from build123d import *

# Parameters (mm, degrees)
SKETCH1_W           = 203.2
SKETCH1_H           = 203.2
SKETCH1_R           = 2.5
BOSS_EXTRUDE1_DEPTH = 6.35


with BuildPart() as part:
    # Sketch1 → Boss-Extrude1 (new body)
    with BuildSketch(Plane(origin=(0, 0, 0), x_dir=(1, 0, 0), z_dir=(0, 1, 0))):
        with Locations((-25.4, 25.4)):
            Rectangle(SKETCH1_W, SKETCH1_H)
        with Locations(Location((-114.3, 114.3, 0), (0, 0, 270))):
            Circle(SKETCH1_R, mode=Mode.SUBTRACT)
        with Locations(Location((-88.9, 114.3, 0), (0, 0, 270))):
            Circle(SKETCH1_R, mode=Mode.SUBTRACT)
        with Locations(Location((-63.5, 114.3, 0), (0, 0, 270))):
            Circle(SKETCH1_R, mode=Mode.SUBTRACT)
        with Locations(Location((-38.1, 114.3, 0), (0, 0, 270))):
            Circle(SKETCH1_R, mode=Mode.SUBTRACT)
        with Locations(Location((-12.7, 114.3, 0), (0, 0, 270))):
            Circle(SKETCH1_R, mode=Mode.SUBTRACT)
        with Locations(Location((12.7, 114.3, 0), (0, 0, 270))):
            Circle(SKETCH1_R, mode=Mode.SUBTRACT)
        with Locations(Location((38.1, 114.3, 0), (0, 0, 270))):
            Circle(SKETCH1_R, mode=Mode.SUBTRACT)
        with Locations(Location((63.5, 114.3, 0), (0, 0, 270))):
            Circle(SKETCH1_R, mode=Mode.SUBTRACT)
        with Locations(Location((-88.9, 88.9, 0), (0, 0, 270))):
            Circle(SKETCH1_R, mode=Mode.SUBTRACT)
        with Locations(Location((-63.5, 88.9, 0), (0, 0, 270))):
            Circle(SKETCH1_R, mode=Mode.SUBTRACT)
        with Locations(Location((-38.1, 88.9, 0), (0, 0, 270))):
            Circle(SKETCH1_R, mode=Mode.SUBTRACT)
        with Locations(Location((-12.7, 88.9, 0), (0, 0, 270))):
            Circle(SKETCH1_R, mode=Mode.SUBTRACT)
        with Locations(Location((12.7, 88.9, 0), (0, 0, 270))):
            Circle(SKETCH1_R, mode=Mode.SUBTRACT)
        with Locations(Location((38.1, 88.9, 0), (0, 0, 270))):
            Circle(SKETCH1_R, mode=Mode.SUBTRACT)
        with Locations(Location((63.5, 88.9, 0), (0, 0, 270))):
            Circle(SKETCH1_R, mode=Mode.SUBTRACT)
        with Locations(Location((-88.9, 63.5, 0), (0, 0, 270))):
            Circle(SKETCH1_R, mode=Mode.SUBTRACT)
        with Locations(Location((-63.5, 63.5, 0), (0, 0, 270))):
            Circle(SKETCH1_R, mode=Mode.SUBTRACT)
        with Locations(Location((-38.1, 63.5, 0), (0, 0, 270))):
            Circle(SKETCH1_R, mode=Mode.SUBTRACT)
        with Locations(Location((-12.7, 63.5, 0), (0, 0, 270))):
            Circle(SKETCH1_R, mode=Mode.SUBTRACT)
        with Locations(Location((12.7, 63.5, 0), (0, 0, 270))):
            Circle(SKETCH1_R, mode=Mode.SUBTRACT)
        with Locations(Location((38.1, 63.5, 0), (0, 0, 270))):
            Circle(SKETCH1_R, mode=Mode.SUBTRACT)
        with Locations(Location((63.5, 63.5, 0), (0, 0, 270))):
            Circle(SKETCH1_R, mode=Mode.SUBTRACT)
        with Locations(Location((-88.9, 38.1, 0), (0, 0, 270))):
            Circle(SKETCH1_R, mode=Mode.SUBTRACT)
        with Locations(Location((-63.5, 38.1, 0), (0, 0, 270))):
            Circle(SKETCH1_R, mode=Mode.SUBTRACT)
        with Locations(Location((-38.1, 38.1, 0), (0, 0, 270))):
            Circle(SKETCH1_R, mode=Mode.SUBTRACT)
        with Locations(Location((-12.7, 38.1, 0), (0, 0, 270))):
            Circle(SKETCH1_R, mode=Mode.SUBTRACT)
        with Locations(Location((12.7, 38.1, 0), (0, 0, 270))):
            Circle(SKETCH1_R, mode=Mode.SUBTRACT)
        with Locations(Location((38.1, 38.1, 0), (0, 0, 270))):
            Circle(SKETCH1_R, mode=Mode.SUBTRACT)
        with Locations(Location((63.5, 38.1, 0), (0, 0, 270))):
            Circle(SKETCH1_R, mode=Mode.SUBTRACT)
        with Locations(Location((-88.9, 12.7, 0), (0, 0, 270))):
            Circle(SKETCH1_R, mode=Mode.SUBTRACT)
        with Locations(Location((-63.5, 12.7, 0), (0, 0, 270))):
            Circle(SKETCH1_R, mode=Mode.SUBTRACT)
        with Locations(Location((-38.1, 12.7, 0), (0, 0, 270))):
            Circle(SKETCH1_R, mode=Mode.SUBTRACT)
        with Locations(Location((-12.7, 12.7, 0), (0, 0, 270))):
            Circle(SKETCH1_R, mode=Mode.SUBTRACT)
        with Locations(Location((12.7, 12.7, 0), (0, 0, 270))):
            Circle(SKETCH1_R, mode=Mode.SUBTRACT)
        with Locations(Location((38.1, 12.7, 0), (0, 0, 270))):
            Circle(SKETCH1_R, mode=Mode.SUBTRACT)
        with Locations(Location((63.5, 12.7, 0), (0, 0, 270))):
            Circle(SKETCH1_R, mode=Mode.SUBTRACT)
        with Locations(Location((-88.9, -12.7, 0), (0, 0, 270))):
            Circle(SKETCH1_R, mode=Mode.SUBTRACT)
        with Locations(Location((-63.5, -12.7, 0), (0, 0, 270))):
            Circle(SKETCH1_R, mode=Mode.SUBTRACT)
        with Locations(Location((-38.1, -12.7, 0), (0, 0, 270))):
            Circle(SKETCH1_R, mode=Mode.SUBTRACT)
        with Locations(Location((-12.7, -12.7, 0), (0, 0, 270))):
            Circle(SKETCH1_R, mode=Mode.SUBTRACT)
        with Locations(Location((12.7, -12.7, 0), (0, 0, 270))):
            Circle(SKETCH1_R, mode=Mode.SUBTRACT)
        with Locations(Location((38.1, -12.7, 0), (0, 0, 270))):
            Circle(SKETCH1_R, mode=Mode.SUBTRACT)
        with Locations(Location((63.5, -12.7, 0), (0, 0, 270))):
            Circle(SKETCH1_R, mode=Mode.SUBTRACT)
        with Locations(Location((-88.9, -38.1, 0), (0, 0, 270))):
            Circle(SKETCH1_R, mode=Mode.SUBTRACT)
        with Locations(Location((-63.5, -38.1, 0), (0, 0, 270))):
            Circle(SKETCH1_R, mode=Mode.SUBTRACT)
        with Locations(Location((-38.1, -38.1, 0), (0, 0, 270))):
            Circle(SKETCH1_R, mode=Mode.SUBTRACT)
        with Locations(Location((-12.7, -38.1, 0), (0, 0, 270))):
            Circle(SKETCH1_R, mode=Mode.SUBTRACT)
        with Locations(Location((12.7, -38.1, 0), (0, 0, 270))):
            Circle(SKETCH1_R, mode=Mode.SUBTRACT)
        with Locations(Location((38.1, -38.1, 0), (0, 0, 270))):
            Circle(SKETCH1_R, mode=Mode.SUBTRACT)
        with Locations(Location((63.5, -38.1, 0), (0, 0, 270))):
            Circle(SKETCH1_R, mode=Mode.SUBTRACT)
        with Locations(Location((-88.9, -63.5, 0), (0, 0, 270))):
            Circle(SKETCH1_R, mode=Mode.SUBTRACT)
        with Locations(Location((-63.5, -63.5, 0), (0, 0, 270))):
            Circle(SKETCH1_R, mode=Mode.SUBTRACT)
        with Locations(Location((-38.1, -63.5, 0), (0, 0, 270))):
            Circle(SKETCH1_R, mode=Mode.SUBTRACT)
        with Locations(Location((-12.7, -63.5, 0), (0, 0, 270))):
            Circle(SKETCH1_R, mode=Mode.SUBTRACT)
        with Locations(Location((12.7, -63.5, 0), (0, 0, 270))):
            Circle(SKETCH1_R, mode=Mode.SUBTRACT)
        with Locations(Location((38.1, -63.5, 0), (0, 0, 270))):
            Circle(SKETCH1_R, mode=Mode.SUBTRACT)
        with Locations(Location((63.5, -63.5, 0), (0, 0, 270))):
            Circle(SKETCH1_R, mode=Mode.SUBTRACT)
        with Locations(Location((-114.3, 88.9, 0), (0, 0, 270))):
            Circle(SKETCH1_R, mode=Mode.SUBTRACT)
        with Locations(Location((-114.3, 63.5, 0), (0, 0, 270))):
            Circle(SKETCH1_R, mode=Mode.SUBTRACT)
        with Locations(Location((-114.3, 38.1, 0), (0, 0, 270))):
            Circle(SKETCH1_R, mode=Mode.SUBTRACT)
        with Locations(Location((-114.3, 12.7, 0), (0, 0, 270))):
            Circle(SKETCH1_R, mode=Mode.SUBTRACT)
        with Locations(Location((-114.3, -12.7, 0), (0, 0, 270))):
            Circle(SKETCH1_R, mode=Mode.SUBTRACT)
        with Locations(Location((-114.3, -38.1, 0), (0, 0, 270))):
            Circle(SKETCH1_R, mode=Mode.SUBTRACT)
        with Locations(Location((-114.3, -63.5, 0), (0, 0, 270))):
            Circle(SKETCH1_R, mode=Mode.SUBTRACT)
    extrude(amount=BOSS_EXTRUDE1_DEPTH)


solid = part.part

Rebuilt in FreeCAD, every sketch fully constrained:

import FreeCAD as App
import Part
import Sketcher
Q = App.Units.Quantity


def add_polygon(sketch, points):
    """Adds a closed chain of lines whose ends are joined by coincident constraints."""
    first, n = sketch.GeometryCount, len(points)
    for a, b in zip(points, points[1:] + points[:1]):
        sketch.addGeometry(Part.LineSegment(App.Vector(*a, 0), App.Vector(*b, 0)), False)
    for i in range(n):
        sketch.addConstraint(Sketcher.Constraint("Coincident", first + i, 2, first + (i + 1) % n, 1))

doc = App.newDocument("Part")
body = doc.addObject("PartDesign::Body", "Body")

sketch1 = body.newObject("Sketcher::SketchObject", "Sketch")
sketch1.AttachmentSupport = (doc.getObject("XZ_Plane"), [""])
sketch1.MapMode = "FlatFace"
add_polygon(sketch1, [(-127, -127), (-127, 76.2), (76.2, 76.2), (76.2, -127)])
sketch1.addGeometry(Part.Circle(App.Vector(-114.3, 63.5, 0), App.Vector(0, 0, 1), 2.5), False)
sketch1.addGeometry(Part.Circle(App.Vector(-88.9, 63.5, 0), App.Vector(0, 0, 1), 2.5), False)
sketch1.addGeometry(Part.Circle(App.Vector(-114.3, 38.1, 0), App.Vector(0, 0, 1), 2.5), False)
sketch1.addGeometry(Part.Circle(App.Vector(-88.9, 38.1, 0), App.Vector(0, 0, 1), 2.5), False)
sketch1.addGeometry(Part.Circle(App.Vector(-63.5, 63.5, 0), App.Vector(0, 0, 1), 2.5), False)
sketch1.addGeometry(Part.Circle(App.Vector(-38.1, 63.5, 0), App.Vector(0, 0, 1), 2.5), False)
sketch1.addGeometry(Part.Circle(App.Vector(-63.5, 38.1, 0), App.Vector(0, 0, 1), 2.5), False)
sketch1.addGeometry(Part.Circle(App.Vector(-38.1, 38.1, 0), App.Vector(0, 0, 1), 2.5), False)
sketch1.addGeometry(Part.Circle(App.Vector(-114.3, 12.7, 0), App.Vector(0, 0, 1), 2.5), False)
sketch1.addGeometry(Part.Circle(App.Vector(-88.9, 12.7, 0), App.Vector(0, 0, 1), 2.5), False)
sketch1.addGeometry(Part.Circle(App.Vector(-114.3, -12.7, 0), App.Vector(0, 0, 1), 2.5), False)
sketch1.addGeometry(Part.Circle(App.Vector(-88.9, -12.7, 0), App.Vector(0, 0, 1), 2.5), False)
sketch1.addGeometry(Part.Circle(App.Vector(-63.5, 12.7, 0), App.Vector(0, 0, 1), 2.5), False)
sketch1.addGeometry(Part.Circle(App.Vector(-38.1, 12.7, 0), App.Vector(0, 0, 1), 2.5), False)
sketch1.addGeometry(Part.Circle(App.Vector(-63.5, -12.7, 0), App.Vector(0, 0, 1), 2.5), False)
sketch1.addGeometry(Part.Circle(App.Vector(-38.1, -12.7, 0), App.Vector(0, 0, 1), 2.5), False)
sketch1.addGeometry(Part.Circle(App.Vector(-12.7, 63.5, 0), App.Vector(0, 0, 1), 2.5), False)
sketch1.addGeometry(Part.Circle(App.Vector(12.7, 63.5, 0), App.Vector(0, 0, 1), 2.5), False)
sketch1.addGeometry(Part.Circle(App.Vector(-12.7, 38.1, 0), App.Vector(0, 0, 1), 2.5), False)
sketch1.addGeometry(Part.Circle(App.Vector(12.7, 38.1, 0), App.Vector(0, 0, 1), 2.5), False)
sketch1.addGeometry(Part.Circle(App.Vector(38.1, 63.5, 0), App.Vector(0, 0, 1), 2.5), False)
sketch1.addGeometry(Part.Circle(App.Vector(63.5, 63.5, 0), App.Vector(0, 0, 1), 2.5), False)
sketch1.addGeometry(Part.Circle(App.Vector(38.1, 38.1, 0), App.Vector(0, 0, 1), 2.5), False)
sketch1.addGeometry(Part.Circle(App.Vector(63.5, 38.1, 0), App.Vector(0, 0, 1), 2.5), False)
sketch1.addGeometry(Part.Circle(App.Vector(-12.7, 12.7, 0), App.Vector(0, 0, 1), 2.5), False)
sketch1.addGeometry(Part.Circle(App.Vector(12.7, 12.7, 0), App.Vector(0, 0, 1), 2.5), False)
sketch1.addGeometry(Part.Circle(App.Vector(-12.7, -12.7, 0), App.Vector(0, 0, 1), 2.5), False)
sketch1.addGeometry(Part.Circle(App.Vector(12.7, -12.7, 0), App.Vector(0, 0, 1), 2.5), False)
sketch1.addGeometry(Part.Circle(App.Vector(38.1, 12.7, 0), App.Vector(0, 0, 1), 2.5), False)
sketch1.addGeometry(Part.Circle(App.Vector(63.5, 12.7, 0), App.Vector(0, 0, 1), 2.5), False)
sketch1.addGeometry(Part.Circle(App.Vector(38.1, -12.7, 0), App.Vector(0, 0, 1), 2.5), False)
sketch1.addGeometry(Part.Circle(App.Vector(63.5, -12.7, 0), App.Vector(0, 0, 1), 2.5), False)
sketch1.addGeometry(Part.Circle(App.Vector(-114.3, -38.1, 0), App.Vector(0, 0, 1), 2.5), False)
sketch1.addGeometry(Part.Circle(App.Vector(-88.9, -38.1, 0), App.Vector(0, 0, 1), 2.5), False)
sketch1.addGeometry(Part.Circle(App.Vector(-114.3, -63.5, 0), App.Vector(0, 0, 1), 2.5), False)
sketch1.addGeometry(Part.Circle(App.Vector(-88.9, -63.5, 0), App.Vector(0, 0, 1), 2.5), False)
sketch1.addGeometry(Part.Circle(App.Vector(-63.5, -38.1, 0), App.Vector(0, 0, 1), 2.5), False)
sketch1.addGeometry(Part.Circle(App.Vector(-38.1, -38.1, 0), App.Vector(0, 0, 1), 2.5), False)
sketch1.addGeometry(Part.Circle(App.Vector(-63.5, -63.5, 0), App.Vector(0, 0, 1), 2.5), False)
sketch1.addGeometry(Part.Circle(App.Vector(-38.1, -63.5, 0), App.Vector(0, 0, 1), 2.5), False)
sketch1.addGeometry(Part.Circle(App.Vector(-114.3, -88.9, 0), App.Vector(0, 0, 1), 2.5), False)
sketch1.addGeometry(Part.Circle(App.Vector(-88.9, -88.9, 0), App.Vector(0, 0, 1), 2.5), False)
sketch1.addGeometry(Part.Circle(App.Vector(-114.3, -114.3, 0), App.Vector(0, 0, 1), 2.5), False)
sketch1.addGeometry(Part.Circle(App.Vector(-88.9, -114.3, 0), App.Vector(0, 0, 1), 2.5), False)
sketch1.addGeometry(Part.Circle(App.Vector(-63.5, -88.9, 0), App.Vector(0, 0, 1), 2.5), False)
sketch1.addGeometry(Part.Circle(App.Vector(-38.1, -88.9, 0), App.Vector(0, 0, 1), 2.5), False)
sketch1.addGeometry(Part.Circle(App.Vector(-63.5, -114.3, 0), App.Vector(0, 0, 1), 2.5), False)
sketch1.addGeometry(Part.Circle(App.Vector(-38.1, -114.3, 0), App.Vector(0, 0, 1), 2.5), False)
sketch1.addGeometry(Part.Circle(App.Vector(-12.7, -38.1, 0), App.Vector(0, 0, 1), 2.5), False)
sketch1.addGeometry(Part.Circle(App.Vector(12.7, -38.1, 0), App.Vector(0, 0, 1), 2.5), False)
sketch1.addGeometry(Part.Circle(App.Vector(-12.7, -63.5, 0), App.Vector(0, 0, 1), 2.5), False)
sketch1.addGeometry(Part.Circle(App.Vector(12.7, -63.5, 0), App.Vector(0, 0, 1), 2.5), False)
sketch1.addGeometry(Part.Circle(App.Vector(38.1, -38.1, 0), App.Vector(0, 0, 1), 2.5), False)
sketch1.addGeometry(Part.Circle(App.Vector(63.5, -38.1, 0), App.Vector(0, 0, 1), 2.5), False)
sketch1.addGeometry(Part.Circle(App.Vector(38.1, -63.5, 0), App.Vector(0, 0, 1), 2.5), False)
sketch1.addGeometry(Part.Circle(App.Vector(63.5, -63.5, 0), App.Vector(0, 0, 1), 2.5), False)
sketch1.addGeometry(Part.Circle(App.Vector(-12.7, -88.9, 0), App.Vector(0, 0, 1), 2.5), False)
sketch1.addGeometry(Part.Circle(App.Vector(12.7, -88.9, 0), App.Vector(0, 0, 1), 2.5), False)
sketch1.addGeometry(Part.Circle(App.Vector(-12.7, -114.3, 0), App.Vector(0, 0, 1), 2.5), False)
sketch1.addGeometry(Part.Circle(App.Vector(12.7, -114.3, 0), App.Vector(0, 0, 1), 2.5), False)
sketch1.addGeometry(Part.Circle(App.Vector(38.1, -88.9, 0), App.Vector(0, 0, 1), 2.5), False)
sketch1.addGeometry(Part.Circle(App.Vector(63.5, -88.9, 0), App.Vector(0, 0, 1), 2.5), False)
sketch1.addGeometry(Part.Circle(App.Vector(38.1, -114.3, 0), App.Vector(0, 0, 1), 2.5), False)
sketch1.addGeometry(Part.Circle(App.Vector(63.5, -114.3, 0), App.Vector(0, 0, 1), 2.5), False)
sketch1.addConstraint([
    Sketcher.Constraint("Vertical", 0),
    Sketcher.Constraint("Horizontal", 1),
    Sketcher.Constraint("Vertical", 2),
    Sketcher.Constraint("Horizontal", 3),
    Sketcher.Constraint("Equal", 4, 5),
    Sketcher.Constraint("Equal", 5, 6),
    Sketcher.Constraint("Equal", 6, 7),
    Sketcher.Constraint("Equal", 7, 8),
    Sketcher.Constraint("Equal", 8, 9),
    Sketcher.Constraint("Equal", 9, 10),
    Sketcher.Constraint("Equal", 10, 11),
    Sketcher.Constraint("Equal", 11, 12),
    Sketcher.Constraint("Equal", 12, 13),
    Sketcher.Constraint("Equal", 13, 14),
    Sketcher.Constraint("Equal", 14, 15),
    Sketcher.Constraint("Equal", 15, 16),
    Sketcher.Constraint("Equal", 16, 17),
    Sketcher.Constraint("Equal", 17, 18),
    Sketcher.Constraint("Equal", 18, 19),
    Sketcher.Constraint("Equal", 19, 20),
    Sketcher.Constraint("Equal", 20, 21),
    Sketcher.Constraint("Equal", 21, 22),
    Sketcher.Constraint("Equal", 22, 23),
    Sketcher.Constraint("Equal", 23, 24),
    Sketcher.Constraint("Equal", 24, 25),
    Sketcher.Constraint("Equal", 25, 26),
    Sketcher.Constraint("Equal", 26, 27),
    Sketcher.Constraint("Equal", 27, 28),
    Sketcher.Constraint("Equal", 28, 29),
    Sketcher.Constraint("Equal", 29, 30),
    Sketcher.Constraint("Equal", 30, 31),
    Sketcher.Constraint("Equal", 31, 32),
    Sketcher.Constraint("Equal", 32, 33),
    Sketcher.Constraint("Equal", 33, 34),
    Sketcher.Constraint("Equal", 34, 35),
    Sketcher.Constraint("Equal", 35, 36),
    Sketcher.Constraint("Equal", 36, 37),
    Sketcher.Constraint("Equal", 37, 38),
    Sketcher.Constraint("Equal", 38, 39),
    Sketcher.Constraint("Equal", 39, 40),
    Sketcher.Constraint("Equal", 40, 41),
    Sketcher.Constraint("Equal", 41, 42),
    Sketcher.Constraint("Equal", 42, 43),
    Sketcher.Constraint("Equal", 43, 44),
    Sketcher.Constraint("Equal", 44, 45),
    Sketcher.Constraint("Equal", 45, 46),
    Sketcher.Constraint("Equal", 46, 47),
    Sketcher.Constraint("Equal", 47, 48),
    Sketcher.Constraint("Equal", 48, 49),
    Sketcher.Constraint("Equal", 49, 50),
    Sketcher.Constraint("Equal", 50, 51),
    Sketcher.Constraint("Equal", 51, 52),
    Sketcher.Constraint("Equal", 52, 53),
    Sketcher.Constraint("Equal", 53, 54),
    Sketcher.Constraint("Equal", 54, 55),
    Sketcher.Constraint("Equal", 55, 56),
    Sketcher.Constraint("Equal", 56, 57),
    Sketcher.Constraint("Equal", 57, 58),
    Sketcher.Constraint("Equal", 58, 59),
    Sketcher.Constraint("Equal", 59, 60),
    Sketcher.Constraint("Equal", 60, 61),
    Sketcher.Constraint("Equal", 61, 62),
    Sketcher.Constraint("Equal", 62, 63),
    Sketcher.Constraint("Equal", 63, 64),
    Sketcher.Constraint("Equal", 64, 65),
    Sketcher.Constraint("Equal", 65, 66),
    Sketcher.Constraint("Equal", 66, 67),
    Sketcher.Constraint("Symmetric", 29, 3, 30, 3, -1, 1),
    Sketcher.Constraint("Symmetric", 28, 3, 31, 3, -1, 1),
    Sketcher.Constraint("Symmetric", 19, 3, 32, 3, -1, 1),
    Sketcher.Constraint("Symmetric", 18, 3, 33, 3, -1, 1),
    Sketcher.Constraint("Symmetric", 17, 3, 34, 3, -1, 1),
    Sketcher.Constraint("Symmetric", 16, 3, 35, 3, -1, 1),
    Sketcher.Constraint("Symmetric", 27, 3, 40, 3, -1, 1),
    Sketcher.Constraint("Symmetric", 26, 3, 41, 3, -1, 1),
    Sketcher.Constraint("Symmetric", 25, 3, 42, 3, -1, 1),
    Sketcher.Constraint("Symmetric", 24, 3, 43, 3, -1, 1),
    Sketcher.Constraint("Symmetric", 23, 3, 52, 3, -1, 1),
    Sketcher.Constraint("Symmetric", 22, 3, 53, 3, -1, 1),
    Sketcher.Constraint("Symmetric", 21, 3, 54, 3, -1, 1),
    Sketcher.Constraint("Symmetric", 20, 3, 55, 3, -1, 1),
    Sketcher.Constraint("Symmetric", 11, 3, 56, 3, -1, 1),
    Sketcher.Constraint("Symmetric", 10, 3, 57, 3, -1, 1),
    Sketcher.Constraint("Symmetric", 9, 3, 58, 3, -1, 1),
    Sketcher.Constraint("Symmetric", 8, 3, 59, 3, -1, 1),
    Sketcher.Constraint("Symmetric", 20, 3, 21, 3, -2),
    Sketcher.Constraint("Symmetric", 22, 3, 23, 3, -2),
    Sketcher.Constraint("Symmetric", 9, 3, 24, 3, -2),
    Sketcher.Constraint("Symmetric", 8, 3, 25, 3, -2),
    Sketcher.Constraint("Symmetric", 11, 3, 26, 3, -2),
    Sketcher.Constraint("Symmetric", 10, 3, 27, 3, -2),
    Sketcher.Constraint("Symmetric", 28, 3, 29, 3, -2),
    Sketcher.Constraint("Symmetric", 17, 3, 32, 3, -2),
    Sketcher.Constraint("Symmetric", 16, 3, 33, 3, -2),
    Sketcher.Constraint("Symmetric", 60, 3, 61, 3, -2),
    Sketcher.Constraint("Symmetric", 62, 3, 63, 3, -2),
    Sketcher.Constraint("Symmetric", 49, 3, 64, 3, -2),
    Sketcher.Constraint("Symmetric", 48, 3, 65, 3, -2),
    Sketcher.Constraint("Symmetric", 51, 3, 66, 3, -2),
    Sketcher.Constraint("Symmetric", 50, 3, 67, 3, -2),
    Sketcher.Constraint("Symmetric", 12, 3, 14, 3, -1),
    Sketcher.Constraint("Symmetric", 13, 3, 15, 3, -1),
    Sketcher.Constraint("Symmetric", 6, 3, 36, 3, -1),
    Sketcher.Constraint("Symmetric", 7, 3, 37, 3, -1),
    Sketcher.Constraint("Symmetric", 4, 3, 38, 3, -1),
    Sketcher.Constraint("Symmetric", 5, 3, 39, 3, -1),
    Sketcher.Constraint("Horizontal", 4, 3, 5, 3),
    Sketcher.Constraint("Horizontal", 6, 3, 7, 3),
    Sketcher.Constraint("Horizontal", 5, 3, 8, 3),
    Sketcher.Constraint("Horizontal", 8, 3, 9, 3),
    Sketcher.Constraint("Horizontal", 7, 3, 10, 3),
    Sketcher.Constraint("Horizontal", 10, 3, 11, 3),
    Sketcher.Constraint("Horizontal", 12, 3, 13, 3),
    Sketcher.Constraint("Horizontal", 13, 3, 16, 3),
    Sketcher.Constraint("Horizontal", 16, 3, 17, 3),
    Sketcher.Constraint("Horizontal", 9, 3, 20, 3),
    Sketcher.Constraint("Horizontal", 11, 3, 22, 3),
    Sketcher.Constraint("Horizontal", 17, 3, 28, 3),
    Sketcher.Constraint("Horizontal", 44, 3, 45, 3),
    Sketcher.Constraint("Horizontal", 46, 3, 47, 3),
    Sketcher.Constraint("Horizontal", 45, 3, 48, 3),
    Sketcher.Constraint("Horizontal", 48, 3, 49, 3),
    Sketcher.Constraint("Horizontal", 47, 3, 50, 3),
    Sketcher.Constraint("Horizontal", 50, 3, 51, 3),
    Sketcher.Constraint("Horizontal", 49, 3, 60, 3),
    Sketcher.Constraint("Horizontal", 51, 3, 62, 3),
    Sketcher.Constraint("Vertical", 4, 3, 6, 3),
    Sketcher.Constraint("Vertical", 5, 3, 7, 3),
    Sketcher.Constraint("Vertical", 8, 3, 10, 3),
    Sketcher.Constraint("Vertical", 9, 3, 11, 3),
    Sketcher.Constraint("Vertical", 6, 3, 12, 3),
    Sketcher.Constraint("Vertical", 7, 3, 13, 3),
    Sketcher.Constraint("Vertical", 10, 3, 16, 3),
    Sketcher.Constraint("Vertical", 11, 3, 17, 3),
    Sketcher.Constraint("Vertical", 20, 3, 22, 3),
    Sketcher.Constraint("Vertical", 22, 3, 28, 3),
    Sketcher.Constraint("Vertical", 38, 3, 44, 3),
    Sketcher.Constraint("Vertical", 39, 3, 45, 3),
    Sketcher.Constraint("Vertical", 44, 3, 46, 3),
    Sketcher.Constraint("Vertical", 45, 3, 47, 3),
    Sketcher.Constraint("Vertical", 42, 3, 48, 3),
    Sketcher.Constraint("Vertical", 43, 3, 49, 3),
    Sketcher.Constraint("Vertical", 48, 3, 50, 3),
    Sketcher.Constraint("Vertical", 49, 3, 51, 3),
    Sketcher.Constraint("Vertical", 54, 3, 60, 3),
    Sketcher.Constraint("Vertical", 60, 3, 62, 3),
    Sketcher.Constraint("Equal", 3, 0),
    Sketcher.Constraint("DistanceX", 1, 1, 1, 2, Q("8 in")),
    Sketcher.Constraint("DistanceX", 0, 2, -1, 1, Q("5 in")),
    Sketcher.Constraint("DistanceY", -1, 1, 0, 2, Q("3 in")),
    Sketcher.Constraint("DistanceX", 4, 3, -1, 1, Q("4.5 in")),
    Sketcher.Constraint("DistanceY", -1, 1, 4, 3, Q("2.5 in")),
    Sketcher.Constraint("DistanceX", 5, 3, -1, 1, Q("3.5 in")),
    Sketcher.Constraint("DistanceY", -1, 1, 6, 3, Q("1.5 in")),
    Sketcher.Constraint("DistanceX", 8, 3, -1, 1, Q("2.5 in")),
    Sketcher.Constraint("DistanceX", 9, 3, -1, 1, Q("1.5 in")),
    Sketcher.Constraint("DistanceY", -1, 1, 12, 3, Q("0.5 in")),
    Sketcher.Constraint("DistanceX", 20, 3, -1, 1, Q("0.5 in")),
    Sketcher.Constraint("DistanceY", 44, 3, -1, 1, Q("3.5 in")),
    Sketcher.Constraint("DistanceY", 46, 3, -1, 1, Q("4.5 in")),
    Sketcher.Constraint("Diameter", 4, 5.0),
])
pad1 = body.newObject("PartDesign::Pad", "Pad")
pad1.Profile = sketch1
pad1.Length = Q("0.25 in")
pad1.Reversed = True

doc.recompute()
